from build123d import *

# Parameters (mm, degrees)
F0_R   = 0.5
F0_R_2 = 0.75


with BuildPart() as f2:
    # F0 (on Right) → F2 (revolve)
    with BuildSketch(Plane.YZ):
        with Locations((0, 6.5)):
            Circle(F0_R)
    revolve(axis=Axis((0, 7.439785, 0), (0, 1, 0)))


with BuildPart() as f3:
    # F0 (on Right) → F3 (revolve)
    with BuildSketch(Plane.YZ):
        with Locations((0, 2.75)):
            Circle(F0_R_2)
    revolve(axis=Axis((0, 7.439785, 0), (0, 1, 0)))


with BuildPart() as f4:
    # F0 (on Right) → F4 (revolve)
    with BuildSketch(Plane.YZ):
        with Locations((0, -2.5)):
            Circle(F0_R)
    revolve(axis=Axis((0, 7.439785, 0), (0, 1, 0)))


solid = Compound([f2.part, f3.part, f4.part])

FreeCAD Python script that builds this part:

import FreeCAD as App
import Part
import Sketcher

V = App.Vector
Q = App.Units.Quantity

doc = App.newDocument("Part")
body = doc.addObject("PartDesign::Body", "Body")

# Sketch on YZ plane
sketch1 = body.newObject("Sketcher::SketchObject", "Sketch")
sketch1.AttachmentSupport = (doc.getObject("YZ_Plane"), [""])
sketch1.MapMode = "FlatFace"
sketch1.addGeometry(Part.Circle(V(0, 6.5, 0), V(0, 0, 1), 0.5), False)
sketch1.addConstraint(Sketcher.Constraint("PointOnObject", 0, 3, -2))
sketch1.addConstraint(Sketcher.Constraint("Diameter", 0, Q("1 mm")))
sketch1.addConstraint(Sketcher.Constraint("DistanceY", -1, 1, 0, 3, Q("6.5 mm")))
revolution = body.newObject("PartDesign::Revolution", "Revolution")
revolution.Profile = sketch1
revolution.ReferenceAxis = (sketch1, ["H_Axis"])
revolution.Angle = 360
body2 = doc.addObject("PartDesign::Body", "Body001")

# Sketch on YZ plane
sketch2 = body2.newObject("Sketcher::SketchObject", "Sketch001")
sketch2.AttachmentSupport = (doc.getObject("YZ_Plane001"), [""])
sketch2.MapMode = "FlatFace"
sketch2.addGeometry(Part.Circle(V(0, 2.8, 0), V(0, 0, 1), 0.8), False)
sketch2.addConstraint(Sketcher.Constraint("PointOnObject", 0, 3, -2))
sketch2.addConstraint(Sketcher.Constraint("Diameter", 0, Q("1.5 mm")))
sketch2.addConstraint(Sketcher.Constraint("DistanceY", -1, 1, 0, 3, Q("2.75 mm")))
revolution2 = body2.newObject("PartDesign::Revolution", "Revolution001")
revolution2.Profile = sketch2
revolution2.ReferenceAxis = (sketch2, ["H_Axis"])
revolution2.Angle = 360
body3 = doc.addObject("PartDesign::Body", "Body002")

# Sketch on YZ plane
sketch3 = body3.newObject("Sketcher::SketchObject", "Sketch002")
sketch3.AttachmentSupport = (doc.getObject("YZ_Plane002"), [""])
sketch3.MapMode = "FlatFace"
sketch3.addGeometry(Part.Circle(V(0, -2.5, 0), V(0, 0, 1), 0.5), False)
sketch3.addConstraint(Sketcher.Constraint("PointOnObject", 0, 3, -2))
sketch3.addConstraint(Sketcher.Constraint("Diameter", 0, Q("1 mm")))
sketch3.addConstraint(Sketcher.Constraint("DistanceY", 0, 3, -1, 1, Q("2.5 mm")))
revolution3 = body3.newObject("PartDesign::Revolution", "Revolution002")
revolution3.Profile = sketch3
revolution3.ReferenceAxis = (sketch3, ["H_Axis"])
revolution3.Angle = 360

doc.recompute()
